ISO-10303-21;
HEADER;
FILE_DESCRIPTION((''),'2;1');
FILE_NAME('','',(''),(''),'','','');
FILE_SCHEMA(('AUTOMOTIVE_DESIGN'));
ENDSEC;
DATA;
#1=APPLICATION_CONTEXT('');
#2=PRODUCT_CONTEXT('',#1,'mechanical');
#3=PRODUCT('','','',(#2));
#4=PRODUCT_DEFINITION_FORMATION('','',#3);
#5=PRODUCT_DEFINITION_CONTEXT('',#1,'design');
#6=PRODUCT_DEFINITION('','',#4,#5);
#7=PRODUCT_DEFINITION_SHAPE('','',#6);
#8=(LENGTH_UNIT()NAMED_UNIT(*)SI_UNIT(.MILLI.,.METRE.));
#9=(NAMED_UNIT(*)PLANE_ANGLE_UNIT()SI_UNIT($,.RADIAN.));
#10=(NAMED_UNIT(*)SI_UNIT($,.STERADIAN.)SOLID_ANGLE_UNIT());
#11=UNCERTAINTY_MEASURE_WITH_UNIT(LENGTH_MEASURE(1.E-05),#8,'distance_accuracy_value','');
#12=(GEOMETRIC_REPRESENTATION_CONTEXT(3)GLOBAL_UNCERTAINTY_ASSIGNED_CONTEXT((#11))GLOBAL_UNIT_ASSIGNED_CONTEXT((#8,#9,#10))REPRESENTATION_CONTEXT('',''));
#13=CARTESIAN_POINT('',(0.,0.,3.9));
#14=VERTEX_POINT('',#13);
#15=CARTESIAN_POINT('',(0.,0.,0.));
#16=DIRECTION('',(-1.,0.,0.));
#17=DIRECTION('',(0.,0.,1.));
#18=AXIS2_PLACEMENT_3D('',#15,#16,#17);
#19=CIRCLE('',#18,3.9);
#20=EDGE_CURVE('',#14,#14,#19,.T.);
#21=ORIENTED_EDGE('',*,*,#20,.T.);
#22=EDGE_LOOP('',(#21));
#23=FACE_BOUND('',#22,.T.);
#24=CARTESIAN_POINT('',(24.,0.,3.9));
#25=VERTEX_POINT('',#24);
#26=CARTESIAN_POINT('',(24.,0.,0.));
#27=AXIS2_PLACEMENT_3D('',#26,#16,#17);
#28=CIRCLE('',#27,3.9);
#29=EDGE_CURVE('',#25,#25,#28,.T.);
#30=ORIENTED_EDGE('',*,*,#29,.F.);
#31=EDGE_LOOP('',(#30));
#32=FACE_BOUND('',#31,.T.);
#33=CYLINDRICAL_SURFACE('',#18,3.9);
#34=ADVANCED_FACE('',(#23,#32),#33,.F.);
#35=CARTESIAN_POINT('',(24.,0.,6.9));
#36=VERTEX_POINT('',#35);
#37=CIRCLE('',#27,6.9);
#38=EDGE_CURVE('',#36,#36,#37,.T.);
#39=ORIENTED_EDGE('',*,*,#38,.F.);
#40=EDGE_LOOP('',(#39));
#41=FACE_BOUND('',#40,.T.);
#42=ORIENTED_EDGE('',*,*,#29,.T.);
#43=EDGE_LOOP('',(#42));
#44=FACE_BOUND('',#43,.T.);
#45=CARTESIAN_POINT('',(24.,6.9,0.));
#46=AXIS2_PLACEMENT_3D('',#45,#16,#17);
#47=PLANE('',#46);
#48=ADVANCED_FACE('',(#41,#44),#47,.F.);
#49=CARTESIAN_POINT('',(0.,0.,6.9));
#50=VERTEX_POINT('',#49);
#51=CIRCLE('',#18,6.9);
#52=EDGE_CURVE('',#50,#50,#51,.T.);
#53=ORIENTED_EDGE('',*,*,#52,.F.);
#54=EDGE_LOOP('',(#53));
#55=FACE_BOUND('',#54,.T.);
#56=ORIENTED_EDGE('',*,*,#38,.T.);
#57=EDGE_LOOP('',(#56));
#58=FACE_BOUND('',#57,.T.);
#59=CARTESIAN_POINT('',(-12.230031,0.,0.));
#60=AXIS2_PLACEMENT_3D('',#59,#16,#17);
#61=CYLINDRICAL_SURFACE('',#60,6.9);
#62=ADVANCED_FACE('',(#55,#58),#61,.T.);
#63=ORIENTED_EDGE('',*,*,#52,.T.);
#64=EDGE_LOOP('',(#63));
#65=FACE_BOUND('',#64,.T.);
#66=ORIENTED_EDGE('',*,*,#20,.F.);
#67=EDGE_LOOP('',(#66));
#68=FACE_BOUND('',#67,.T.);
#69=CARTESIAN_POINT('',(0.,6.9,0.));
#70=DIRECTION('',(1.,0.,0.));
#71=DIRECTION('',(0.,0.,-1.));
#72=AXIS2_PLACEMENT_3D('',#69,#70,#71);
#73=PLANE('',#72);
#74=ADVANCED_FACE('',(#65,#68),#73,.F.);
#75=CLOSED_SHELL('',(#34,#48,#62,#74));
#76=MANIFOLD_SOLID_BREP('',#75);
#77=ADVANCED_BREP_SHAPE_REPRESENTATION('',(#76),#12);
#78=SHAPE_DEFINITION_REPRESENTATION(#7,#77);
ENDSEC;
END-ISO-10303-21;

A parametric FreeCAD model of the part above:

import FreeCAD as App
import Part
import Sketcher
Q = App.Units.Quantity

doc = App.newDocument("Part")
body = doc.addObject("PartDesign::Body", "Body")

# Sketch on XY plane
sketch1 = body.newObject("Sketcher::SketchObject", "Sketch")
sketch1.AttachmentSupport = (doc.getObject("XY_Plane"), [""])
sketch1.MapMode = "FlatFace"
sketch1.addGeometry(Part.LineSegment(App.Vector(0, 7, 0), App.Vector(0, 0, 0)), False)
sketch1.addGeometry(Part.LineSegment(App.Vector(0, 0, 0), App.Vector(24, 0, 0)), False)
sketch1.addGeometry(Part.LineSegment(App.Vector(24, 0, 0), App.Vector(24, 7, 0)), False)
sketch1.addGeometry(Part.LineSegment(App.Vector(24, 7, 0), App.Vector(0, 7, 0)), False)
sketch1.addConstraint(Sketcher.Constraint("Coincident", 0, 2, 1, 1))
sketch1.addConstraint(Sketcher.Constraint("Coincident", 1, 2, 2, 1))
sketch1.addConstraint(Sketcher.Constraint("Coincident", 2, 2, 3, 1))
sketch1.addConstraint(Sketcher.Constraint("Coincident", 3, 2, 0, 1))
sketch1.addConstraint(Sketcher.Constraint("Vertical", 0))
sketch1.addConstraint(Sketcher.Constraint("Horizontal", 1))
sketch1.addConstraint(Sketcher.Constraint("Vertical", 2))
sketch1.addConstraint(Sketcher.Constraint("Horizontal", 3))
sketch1.addConstraint(Sketcher.Constraint("Coincident", 0, 2, -1, 1))
sketch1.addConstraint(Sketcher.Constraint("DistanceX", 1, 1, 1, 2, Q("24 mm")))
sketch1.addConstraint(Sketcher.Constraint("DistanceY", 0, 2, 0, 1, Q("6.9 mm")))
revolution = body.newObject("PartDesign::Revolution", "Revolution")
revolution.Profile = sketch1
revolution.ReferenceAxis = (sketch1, ["H_Axis"])
revolution.Angle = 360

# Sketch on YZ plane
sketch2 = body.newObject("Sketcher::SketchObject", "Sketch001")
sketch2.AttachmentSupport = (doc.getObject("YZ_Plane"), [""])
sketch2.MapMode = "FlatFace"
sketch2.addGeometry(Part.Circle(App.Vector(0, 0, 0), App.Vector(0, 0, 1), 3.9), False)
sketch2.addConstraint(Sketcher.Constraint("Coincident", 0, 3, -1, 1))
sketch2.addConstraint(Sketcher.Constraint("Diameter", 0, Q("7.8 mm")))
doc.recompute()
hole = body.newObject("PartDesign::Hole", "Hole")
hole.Profile = sketch2
hole.ThreadType = "None"
hole.Diameter = 7.8
hole.DepthType = "ThroughAll"
hole.Reversed = True

doc.recompute()
